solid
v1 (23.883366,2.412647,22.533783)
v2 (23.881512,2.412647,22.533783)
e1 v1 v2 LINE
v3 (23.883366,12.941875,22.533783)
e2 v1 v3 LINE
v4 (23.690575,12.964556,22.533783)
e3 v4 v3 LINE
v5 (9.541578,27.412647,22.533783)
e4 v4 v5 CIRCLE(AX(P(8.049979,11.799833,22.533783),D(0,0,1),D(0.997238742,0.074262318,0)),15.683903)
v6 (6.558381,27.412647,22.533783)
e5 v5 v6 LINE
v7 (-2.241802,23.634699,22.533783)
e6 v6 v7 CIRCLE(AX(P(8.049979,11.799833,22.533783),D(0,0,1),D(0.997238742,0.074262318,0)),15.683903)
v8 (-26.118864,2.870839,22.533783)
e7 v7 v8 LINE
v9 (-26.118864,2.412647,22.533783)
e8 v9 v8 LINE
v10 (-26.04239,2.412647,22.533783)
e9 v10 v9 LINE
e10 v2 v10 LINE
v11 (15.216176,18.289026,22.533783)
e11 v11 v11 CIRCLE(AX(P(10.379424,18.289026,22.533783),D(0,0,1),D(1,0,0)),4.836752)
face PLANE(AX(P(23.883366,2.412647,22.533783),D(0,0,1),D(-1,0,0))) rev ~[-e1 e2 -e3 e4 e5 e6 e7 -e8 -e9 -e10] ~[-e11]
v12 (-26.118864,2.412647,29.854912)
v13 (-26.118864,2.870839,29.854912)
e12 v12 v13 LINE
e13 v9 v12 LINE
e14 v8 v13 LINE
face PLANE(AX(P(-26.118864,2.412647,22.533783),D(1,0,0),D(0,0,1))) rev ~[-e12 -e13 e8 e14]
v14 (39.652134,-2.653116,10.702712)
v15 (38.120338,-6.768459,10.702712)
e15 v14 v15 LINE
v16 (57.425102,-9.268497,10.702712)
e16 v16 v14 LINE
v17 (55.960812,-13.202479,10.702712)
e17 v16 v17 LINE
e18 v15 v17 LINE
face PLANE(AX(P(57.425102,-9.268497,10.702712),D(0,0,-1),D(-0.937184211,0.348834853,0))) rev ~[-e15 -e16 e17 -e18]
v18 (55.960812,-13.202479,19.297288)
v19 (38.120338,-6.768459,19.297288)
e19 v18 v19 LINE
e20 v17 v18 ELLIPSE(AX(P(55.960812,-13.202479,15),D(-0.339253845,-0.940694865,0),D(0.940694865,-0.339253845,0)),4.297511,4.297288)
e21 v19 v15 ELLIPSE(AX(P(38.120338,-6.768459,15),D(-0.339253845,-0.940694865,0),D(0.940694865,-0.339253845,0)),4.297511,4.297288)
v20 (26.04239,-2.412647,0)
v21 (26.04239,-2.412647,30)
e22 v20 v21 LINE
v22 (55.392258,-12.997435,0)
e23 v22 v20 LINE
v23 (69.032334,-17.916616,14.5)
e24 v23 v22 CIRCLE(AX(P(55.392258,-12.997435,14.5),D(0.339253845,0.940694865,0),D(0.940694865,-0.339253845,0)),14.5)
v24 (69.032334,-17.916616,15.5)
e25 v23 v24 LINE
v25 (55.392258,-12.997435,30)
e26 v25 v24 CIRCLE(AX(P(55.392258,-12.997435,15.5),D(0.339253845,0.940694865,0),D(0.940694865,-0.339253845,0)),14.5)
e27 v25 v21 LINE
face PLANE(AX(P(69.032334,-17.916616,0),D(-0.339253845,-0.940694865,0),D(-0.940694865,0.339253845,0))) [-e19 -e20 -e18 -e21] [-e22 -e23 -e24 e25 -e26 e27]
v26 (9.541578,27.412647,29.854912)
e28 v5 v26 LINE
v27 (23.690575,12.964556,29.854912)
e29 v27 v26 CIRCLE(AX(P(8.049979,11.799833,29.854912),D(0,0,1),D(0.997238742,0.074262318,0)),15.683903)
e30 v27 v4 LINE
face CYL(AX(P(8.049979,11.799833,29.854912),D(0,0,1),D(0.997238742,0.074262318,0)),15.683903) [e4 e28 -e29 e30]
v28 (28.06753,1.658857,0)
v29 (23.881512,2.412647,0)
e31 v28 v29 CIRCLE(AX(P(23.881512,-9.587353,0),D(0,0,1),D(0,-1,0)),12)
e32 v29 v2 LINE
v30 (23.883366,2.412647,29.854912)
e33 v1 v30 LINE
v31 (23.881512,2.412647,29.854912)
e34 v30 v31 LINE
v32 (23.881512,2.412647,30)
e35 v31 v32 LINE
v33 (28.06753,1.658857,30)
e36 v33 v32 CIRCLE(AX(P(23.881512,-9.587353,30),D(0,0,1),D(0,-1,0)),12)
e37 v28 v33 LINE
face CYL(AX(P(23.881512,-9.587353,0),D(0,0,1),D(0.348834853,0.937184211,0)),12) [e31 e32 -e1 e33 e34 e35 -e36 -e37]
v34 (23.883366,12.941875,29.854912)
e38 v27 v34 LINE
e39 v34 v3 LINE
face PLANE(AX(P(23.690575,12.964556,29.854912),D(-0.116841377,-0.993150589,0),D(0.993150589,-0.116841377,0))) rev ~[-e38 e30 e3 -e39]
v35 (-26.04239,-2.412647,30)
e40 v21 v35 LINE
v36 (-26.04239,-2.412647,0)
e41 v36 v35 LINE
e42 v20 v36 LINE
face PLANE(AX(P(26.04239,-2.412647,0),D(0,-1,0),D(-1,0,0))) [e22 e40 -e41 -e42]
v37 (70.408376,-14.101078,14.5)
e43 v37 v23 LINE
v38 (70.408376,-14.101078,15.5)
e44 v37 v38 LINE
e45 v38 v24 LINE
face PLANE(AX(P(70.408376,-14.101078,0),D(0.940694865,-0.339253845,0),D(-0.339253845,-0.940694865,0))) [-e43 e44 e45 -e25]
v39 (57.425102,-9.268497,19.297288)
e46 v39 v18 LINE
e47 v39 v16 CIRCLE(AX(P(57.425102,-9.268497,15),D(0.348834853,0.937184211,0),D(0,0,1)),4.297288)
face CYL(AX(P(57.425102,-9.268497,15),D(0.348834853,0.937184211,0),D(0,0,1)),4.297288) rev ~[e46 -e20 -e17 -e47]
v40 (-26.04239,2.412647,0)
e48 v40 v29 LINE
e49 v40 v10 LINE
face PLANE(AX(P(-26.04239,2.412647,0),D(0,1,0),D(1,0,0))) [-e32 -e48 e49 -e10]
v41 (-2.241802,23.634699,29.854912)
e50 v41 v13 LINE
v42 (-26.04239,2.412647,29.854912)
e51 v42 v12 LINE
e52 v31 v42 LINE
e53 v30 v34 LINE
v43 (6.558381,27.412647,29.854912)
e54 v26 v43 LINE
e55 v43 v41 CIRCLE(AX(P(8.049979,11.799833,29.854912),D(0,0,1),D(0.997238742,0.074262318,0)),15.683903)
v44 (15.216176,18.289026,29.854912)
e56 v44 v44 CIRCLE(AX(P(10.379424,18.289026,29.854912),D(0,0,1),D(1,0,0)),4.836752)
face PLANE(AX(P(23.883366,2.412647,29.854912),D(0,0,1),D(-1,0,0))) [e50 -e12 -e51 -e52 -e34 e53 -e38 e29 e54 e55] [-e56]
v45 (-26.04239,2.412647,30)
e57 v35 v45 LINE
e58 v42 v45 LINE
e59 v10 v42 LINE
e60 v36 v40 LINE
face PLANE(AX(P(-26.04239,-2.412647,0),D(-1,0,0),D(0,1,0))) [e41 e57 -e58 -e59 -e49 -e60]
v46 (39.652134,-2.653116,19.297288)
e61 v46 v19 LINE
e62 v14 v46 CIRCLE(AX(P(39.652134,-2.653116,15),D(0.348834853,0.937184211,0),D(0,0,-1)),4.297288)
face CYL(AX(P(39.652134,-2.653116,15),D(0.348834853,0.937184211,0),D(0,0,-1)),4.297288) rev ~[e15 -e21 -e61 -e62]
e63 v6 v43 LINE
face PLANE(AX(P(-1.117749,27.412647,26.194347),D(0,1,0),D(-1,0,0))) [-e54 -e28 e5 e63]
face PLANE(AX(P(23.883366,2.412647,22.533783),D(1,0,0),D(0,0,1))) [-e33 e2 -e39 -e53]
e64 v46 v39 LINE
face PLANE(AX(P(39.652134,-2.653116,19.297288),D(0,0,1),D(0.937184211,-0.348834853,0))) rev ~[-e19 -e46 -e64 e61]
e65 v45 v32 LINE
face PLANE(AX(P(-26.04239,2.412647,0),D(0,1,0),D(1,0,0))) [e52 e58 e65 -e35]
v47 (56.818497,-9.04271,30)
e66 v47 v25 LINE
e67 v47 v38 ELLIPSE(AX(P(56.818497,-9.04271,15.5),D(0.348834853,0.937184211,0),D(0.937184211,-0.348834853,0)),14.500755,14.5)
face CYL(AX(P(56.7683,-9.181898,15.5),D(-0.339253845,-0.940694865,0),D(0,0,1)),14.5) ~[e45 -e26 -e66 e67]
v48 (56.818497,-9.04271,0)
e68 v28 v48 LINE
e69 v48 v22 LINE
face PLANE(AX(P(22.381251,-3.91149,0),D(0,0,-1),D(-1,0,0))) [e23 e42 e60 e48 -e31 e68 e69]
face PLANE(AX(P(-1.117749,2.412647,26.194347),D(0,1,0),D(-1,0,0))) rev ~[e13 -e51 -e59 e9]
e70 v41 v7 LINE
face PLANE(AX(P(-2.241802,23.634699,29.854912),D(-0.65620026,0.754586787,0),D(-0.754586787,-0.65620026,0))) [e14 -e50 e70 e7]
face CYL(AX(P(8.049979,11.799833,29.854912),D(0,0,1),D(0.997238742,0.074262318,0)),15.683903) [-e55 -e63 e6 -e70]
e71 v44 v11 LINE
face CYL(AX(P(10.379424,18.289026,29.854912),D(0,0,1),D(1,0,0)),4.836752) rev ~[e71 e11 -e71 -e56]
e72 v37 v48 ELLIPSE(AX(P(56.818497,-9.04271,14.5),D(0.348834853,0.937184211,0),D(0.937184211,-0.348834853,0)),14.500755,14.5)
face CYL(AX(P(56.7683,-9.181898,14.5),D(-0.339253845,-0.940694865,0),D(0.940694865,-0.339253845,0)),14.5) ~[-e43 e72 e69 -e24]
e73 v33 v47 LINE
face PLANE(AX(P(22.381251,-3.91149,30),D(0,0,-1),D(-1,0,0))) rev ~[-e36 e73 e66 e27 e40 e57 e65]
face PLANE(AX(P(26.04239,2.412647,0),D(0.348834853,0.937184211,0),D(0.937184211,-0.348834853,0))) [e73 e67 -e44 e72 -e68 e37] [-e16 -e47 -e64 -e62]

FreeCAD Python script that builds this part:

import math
import FreeCAD as App
import Part
import Sketcher

V = App.Vector
Q = App.Units.Quantity


def edges_at(feature, points):
    """Names of the edges that pass closest to the given points."""
    edges = feature.Shape.Edges
    near = lambda p: min(range(len(edges)), key=lambda i: edges[i].distToShape(Part.Vertex(*p))[0])
    return sorted({f"Edge{near(p) + 1}" for p in points})


def add_polygon(sketch, points):
    """Adds a closed chain of lines whose ends are joined by coincident constraints."""
    first, n = sketch.GeometryCount, len(points)
    for a, b in zip(points, points[1:] + points[:1]):
        sketch.addGeometry(Part.LineSegment(App.Vector(*a, 0), App.Vector(*b, 0)), False)
    for i in range(n):
        sketch.addConstraint(Sketcher.Constraint("Coincident", first + i, 2, first + (i + 1) % n, 1))

doc = App.newDocument("Part")
params = doc.addObject("Spreadsheet::Sheet", "Params")
for row, (alias, value) in enumerate([
    ("pad1_length", "30 mm"),
    ("pocket1_length", "5 mm"),
    ("fillet_radius", "14.5 mm"),
    ("fillet2_radius", "14.5 mm"),
    ("fillet3_radius", "12 mm"),
    ("pad2_length", "25 mm"),
    ("pocket2_length", "10 mm"),
], start=1):
    params.set(f"A{row}", alias)
    params.set(f"B{row}", "=" + value)
    params.setAlias(f"B{row}", alias)

body = doc.addObject("PartDesign::Body", "Body")

# Sketch on XY plane
sketch1 = doc.addObject("Sketcher::SketchObject", "Sketch")
body.addObject(sketch1)
sketch1.AttachmentSupport = (doc.XY_Plane, [""])
sketch1.MapMode = "FlatFace"
add_polygon(sketch1, [(-26, 2.4), (-26, -2.4), (26, -2.4), (69, -17.9), (70.4, -14.1), (26, 2.4)])  # lines 0-5
sketch1.addConstraint(Sketcher.Constraint("Vertical", 0))
sketch1.addConstraint(Sketcher.Constraint("Horizontal", 1))
sketch1.addConstraint(Sketcher.Constraint("Horizontal", 5))
sketch1.addConstraint(Sketcher.Constraint("Symmetric", 0, 2, 4, 2, -1, 1))
sketch1.addConstraint(Sketcher.Constraint("Perpendicular", 2, 3))
sketch1.addConstraint(Sketcher.Constraint("Vertical", 1, 2, 4, 2))
sketch1.addConstraint(Sketcher.Constraint("Distance", 2, Q("45.700201 mm")))
sketch1.addConstraint(Sketcher.Constraint("DistanceX", 1, 1, 1, 2, Q("52.084779 mm")))
sketch1.addConstraint(Sketcher.Constraint("DistanceY", 0, 2, 0, 1, Q("4.825293 mm")))
sketch1.addConstraint(Sketcher.Constraint("DistanceY", 3, 2, -1, 1, Q("14.101078 mm")))
sketch1.addConstraint(Sketcher.Constraint("DistanceY", 2, 2, 1, 2, Q("15.503969 mm")))
pad1 = doc.addObject("PartDesign::Pad", "Pad")
body.addObject(pad1)
pad1.Profile = sketch1
pad1.setExpression("Length", "Params.pad1_length")

# Sketch on an angled plane
sketch2 = doc.addObject("Sketcher::SketchObject", "Sketch001")
body.addObject(sketch2)
sketch2.Placement = App.Placement(V(3.957736, 10.632906, 0), App.Rotation(V(-0.937184211, 0.348834853, 0), V(0, 0, 1), V(0.348834853, 0.937184211, 0), "ZXY"))
sketch2.addGeometry(Part.ArcOfCircle(Part.Circle(V(-57.1, 15, 0), V(0, 0, 1), 4.3), math.radians(90), math.radians(270)), False)
sketch2.addGeometry(Part.LineSegment(V(-57.1, 10.7, 0), V(-38.1, 10.7, 0)), False)
sketch2.addGeometry(Part.ArcOfCircle(Part.Circle(V(-38.1, 15, 0), V(0, 0, 1), 4.3), math.radians(-90), math.radians(90)), False)
sketch2.addGeometry(Part.LineSegment(V(-38.1, 19.3, 0), V(-57.1, 19.3, 0)), False)
sketch2.addConstraint(Sketcher.Constraint("Tangent", 0, 2, 1, 1))
sketch2.addConstraint(Sketcher.Constraint("Tangent", 1, 2, 2, 1))
sketch2.addConstraint(Sketcher.Constraint("Tangent", 2, 2, 3, 1))
sketch2.addConstraint(Sketcher.Constraint("Tangent", 3, 2, 0, 1))
sketch2.addConstraint(Sketcher.Constraint("Horizontal", 1))
sketch2.addConstraint(Sketcher.Constraint("Horizontal", 3))
sketch2.addConstraint(Sketcher.Constraint("DistanceY", -1, 1, 0, 3, Q("15 mm")))
sketch2.addConstraint(Sketcher.Constraint("Radius", 0, Q("4.297288 mm")))
sketch2.addConstraint(Sketcher.Constraint("DistanceX", 1, 1, 1, 2, Q("18.964221 mm")))
sketch2.addConstraint(Sketcher.Constraint("DistanceX", 0, 3, -1, 1, Q("57.051074 mm")))
pocket1 = doc.addObject("PartDesign::Pocket", "Pocket")
body.addObject(pocket1)
pocket1.Profile = sketch2
pocket1.setExpression("Length", "Params.pocket1_length")
doc.recompute()

fillet = doc.addObject("PartDesign::Fillet", "Fillet")
body.addObject(fillet)
fillet.Base = (pocket1, edges_at(pocket1, [(69.72, -16.009, 30)]))
fillet.setExpression("Radius", "Params.fillet_radius")
doc.recompute()

fillet2 = doc.addObject("PartDesign::Fillet", "Fillet001")
body.addObject(fillet2)
fillet2.Base = (fillet, edges_at(fillet, [(69.72, -16.009, 0)]))
fillet2.setExpression("Radius", "Params.fillet2_radius")
doc.recompute()

fillet3 = doc.addObject("PartDesign::Fillet", "Fillet002")
body.addObject(fillet3)
fillet3.Base = (fillet2, edges_at(fillet2, [(26.042, 2.413, 15)]))
fillet3.setExpression("Radius", "Params.fillet3_radius")

# Sketch on XZ plane
sketch3 = doc.addObject("Sketcher::SketchObject", "Sketch002")
body.addObject(sketch3)
sketch3.AttachmentSupport = (doc.XZ_Plane, [""])
sketch3.MapMode = "FlatFace"
sketch3.AttachmentOffset = App.Placement(V(0, 0, -2.412647), App.Rotation())
add_polygon(sketch3, [(24, 30), (24, 23), (-26, 23), (-26, 30)])  # lines 0-3
sketch3.addConstraint(Sketcher.Constraint("Vertical", 0))
sketch3.addConstraint(Sketcher.Constraint("Horizontal", 1))
sketch3.addConstraint(Sketcher.Constraint("Vertical", 2))
sketch3.addConstraint(Sketcher.Constraint("Horizontal", 3))
sketch3.addConstraint(Sketcher.Constraint("DistanceX", 1, 2, 1, 1, Q("50.00223 mm")))
sketch3.addConstraint(Sketcher.Constraint("DistanceY", 0, 2, 0, 1, Q("7.321129 mm")))
sketch3.addConstraint(Sketcher.Constraint("DistanceY", -1, 1, 2, 2, Q("29.854912 mm")))
sketch3.addConstraint(Sketcher.Constraint("DistanceX", -1, 1, 0, 2, Q("23.883366 mm")))
pad2 = doc.addObject("PartDesign::Pad", "Pad001")
body.addObject(pad2)
pad2.Profile = sketch3
pad2.setExpression("Length", "Params.pad2_length")
pad2.Reversed = True

# Sketch on XY plane
sketch4 = doc.addObject("Sketcher::SketchObject", "Sketch003")
body.addObject(sketch4)
sketch4.AttachmentSupport = (doc.XY_Plane, [""])
sketch4.MapMode = "FlatFace"
sketch4.AttachmentOffset = App.Placement(V(0, 0, 29.854912), App.Rotation())
sketch4.addGeometry(Part.Circle(V(10.4, 18.3, 0), V(0, 0, 1), 4.8), False)
sketch4.addGeometry(Part.LineSegment(V(-30, 32.3, 0), V(-30, -0.5, 0)), False)
sketch4.addGeometry(Part.LineSegment(V(-30, -0.5, 0), V(-2.2, 23.6, 0)), False)
sketch4.addGeometry(Part.ArcOfCircle(Part.Circle(V(8, 11.8, 0), V(0, 0, 1), 15.7), math.radians(4), math.radians(131)), False)
sketch4.addGeometry(Part.LineSegment(V(23.7, 13, 0), V(32.2, 12, 0)), False)
sketch4.addGeometry(Part.LineSegment(V(32.2, 12, 0), V(31, 32.3, 0)), False)
sketch4.addGeometry(Part.LineSegment(V(31, 32.3, 0), V(-30, 32.3, 0)), False)
sketch4.addConstraint(Sketcher.Constraint("Coincident", 1, 2, 2, 1))
sketch4.addConstraint(Sketcher.Constraint("Tangent", 2, 2, 3, 2))
sketch4.addConstraint(Sketcher.Constraint("Coincident", 3, 1, 4, 1))
sketch4.addConstraint(Sketcher.Constraint("Coincident", 4, 2, 5, 1))
sketch4.addConstraint(Sketcher.Constraint("Coincident", 5, 2, 6, 1))
sketch4.addConstraint(Sketcher.Constraint("Coincident", 6, 2, 1, 1))
sketch4.addConstraint(Sketcher.Constraint("Vertical", 1))
sketch4.addConstraint(Sketcher.Constraint("Horizontal", 6))
sketch4.addConstraint(Sketcher.Constraint("Diameter", 0, Q("9.673505 mm")))
sketch4.addConstraint(Sketcher.Constraint("Radius", 3, Q("15.683903 mm")))
sketch4.addConstraint(Sketcher.Constraint("DistanceX", 6, 2, 6, 1, Q("61.022638 mm")))
sketch4.addConstraint(Sketcher.Constraint("DistanceY", 1, 2, 1, 1, Q("32.779488 mm")))
sketch4.addConstraint(Sketcher.Constraint("DistanceY", -1, 1, 2, 2, Q("23.634699 mm")))
sketch4.addConstraint(Sketcher.Constraint("DistanceX", -1, 1, 5, 2, Q("31.0117 mm")))
sketch4.addConstraint(Sketcher.Constraint("DistanceY", 1, 2, 3, 3, Q("12.313601 mm")))
sketch4.addConstraint(Sketcher.Constraint("DistanceY", 4, 2, 5, 2, Q("20.299501 mm")))
sketch4.addConstraint(Sketcher.Constraint("Distance", 4, Q("8.544379 mm")))
sketch4.addConstraint(Sketcher.Constraint("Distance", 5, Q("20.332888 mm")))
sketch4.addConstraint(Sketcher.Constraint("DistanceX", -1, 1, 3, 3, Q("8.049979 mm")))
sketch4.addConstraint(Sketcher.Constraint("DistanceX", 0, 3, 3, 1, Q("13.311151 mm")))
sketch4.addConstraint(Sketcher.Constraint("DistanceY", 3, 1, 0, 3, Q("5.32447 mm")))
pocket2 = doc.addObject("PartDesign::Pocket", "Pocket001")
body.addObject(pocket2)
pocket2.Profile = sketch4
pocket2.setExpression("Length", "Params.pocket2_length")

doc.recompute()
